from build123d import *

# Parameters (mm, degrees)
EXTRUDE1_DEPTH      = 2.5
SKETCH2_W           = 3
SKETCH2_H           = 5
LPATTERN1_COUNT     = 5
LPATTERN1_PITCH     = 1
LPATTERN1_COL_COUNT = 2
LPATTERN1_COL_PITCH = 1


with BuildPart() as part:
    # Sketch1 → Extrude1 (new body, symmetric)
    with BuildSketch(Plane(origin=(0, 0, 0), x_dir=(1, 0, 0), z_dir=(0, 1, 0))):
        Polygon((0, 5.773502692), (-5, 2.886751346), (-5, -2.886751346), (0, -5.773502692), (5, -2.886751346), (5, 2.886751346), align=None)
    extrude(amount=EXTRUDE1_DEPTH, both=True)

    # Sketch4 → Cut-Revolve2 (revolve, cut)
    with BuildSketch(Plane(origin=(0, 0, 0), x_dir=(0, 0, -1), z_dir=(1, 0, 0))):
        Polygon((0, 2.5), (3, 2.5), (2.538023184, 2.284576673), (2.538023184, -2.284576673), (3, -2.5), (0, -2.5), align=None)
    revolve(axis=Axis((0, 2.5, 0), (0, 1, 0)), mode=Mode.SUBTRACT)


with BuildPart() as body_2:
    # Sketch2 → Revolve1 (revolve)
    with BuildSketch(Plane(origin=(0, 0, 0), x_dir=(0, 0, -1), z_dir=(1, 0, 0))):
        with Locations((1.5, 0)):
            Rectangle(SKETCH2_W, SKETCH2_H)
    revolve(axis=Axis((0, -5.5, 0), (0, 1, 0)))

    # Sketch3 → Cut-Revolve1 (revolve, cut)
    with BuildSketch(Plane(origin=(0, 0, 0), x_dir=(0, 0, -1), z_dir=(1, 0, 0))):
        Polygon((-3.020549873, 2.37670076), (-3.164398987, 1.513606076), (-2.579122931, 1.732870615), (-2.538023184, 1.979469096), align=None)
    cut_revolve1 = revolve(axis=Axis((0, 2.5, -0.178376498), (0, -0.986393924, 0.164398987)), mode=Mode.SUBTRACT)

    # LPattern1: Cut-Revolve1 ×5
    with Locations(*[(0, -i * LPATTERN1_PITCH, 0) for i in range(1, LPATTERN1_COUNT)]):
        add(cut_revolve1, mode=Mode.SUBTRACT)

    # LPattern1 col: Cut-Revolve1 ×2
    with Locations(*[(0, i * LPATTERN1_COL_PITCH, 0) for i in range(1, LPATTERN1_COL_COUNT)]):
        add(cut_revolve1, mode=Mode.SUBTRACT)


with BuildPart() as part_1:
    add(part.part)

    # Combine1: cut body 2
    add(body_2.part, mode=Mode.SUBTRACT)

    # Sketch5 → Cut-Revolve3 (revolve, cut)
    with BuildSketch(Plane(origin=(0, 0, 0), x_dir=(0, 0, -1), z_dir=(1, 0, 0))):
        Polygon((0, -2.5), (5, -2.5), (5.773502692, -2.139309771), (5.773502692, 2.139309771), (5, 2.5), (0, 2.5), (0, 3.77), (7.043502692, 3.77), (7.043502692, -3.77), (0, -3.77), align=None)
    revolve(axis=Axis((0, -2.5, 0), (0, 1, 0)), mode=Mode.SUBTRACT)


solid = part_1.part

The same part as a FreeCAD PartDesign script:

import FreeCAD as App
import Part
import Sketcher
Q = App.Units.Quantity

doc = App.newDocument("Part")
body = doc.addObject("PartDesign::Body", "Body")

# Sketch on XZ plane
sketch1 = body.newObject("Sketcher::SketchObject", "Sketch")
sketch1.AttachmentSupport = (doc.getObject("XZ_Plane"), [""])
sketch1.MapMode = "FlatFace"
sketch1.addGeometry([
    Part.LineSegment(App.Vector(0, -6, 0), App.Vector(-5, -3, 0)),  # 0
    Part.LineSegment(App.Vector(-5, -3, 0), App.Vector(-5, 3, 0)),  # 1
    Part.LineSegment(App.Vector(-5, 3, 0), App.Vector(0, 6, 0)),  # 2
    Part.LineSegment(App.Vector(0, 6, 0), App.Vector(5, 3, 0)),  # 3
    Part.LineSegment(App.Vector(5, 3, 0), App.Vector(5, -3, 0)),  # 4
    Part.LineSegment(App.Vector(5, -3, 0), App.Vector(0, -6, 0)),  # 5
], False)
sketch1.addConstraint([
    Sketcher.Constraint("Coincident", 0, 2, 1, 1),
    Sketcher.Constraint("Coincident", 1, 2, 2, 1),
    Sketcher.Constraint("Coincident", 2, 2, 3, 1),
    Sketcher.Constraint("Coincident", 3, 2, 4, 1),
    Sketcher.Constraint("Coincident", 4, 2, 5, 1),
    Sketcher.Constraint("Coincident", 5, 2, 0, 1),
    Sketcher.Constraint("Vertical", 1),
    Sketcher.Constraint("Vertical", 4),
    Sketcher.Constraint("Symmetric", 0, 2, 3, 2, -1, 1),
    Sketcher.Constraint("Symmetric", 2, 2, 5, 2, -1, 1),
    Sketcher.Constraint("PointOnObject", 2, 2, -2),
    Sketcher.Constraint("Parallel", 2, 5),
    Sketcher.Constraint("Horizontal", 1, 2, 3, 2),
    Sketcher.Constraint("Angle", 0, Q("150 deg")),
    Sketcher.Constraint("DistanceX", 0, 2, -1, 1, 5.0),
    Sketcher.Constraint("DistanceY", 1, 1, 1, 2, 5.773503),
])
pad1 = body.newObject("PartDesign::Pad", "Pad")
pad1.Profile = sketch1
pad1.Length = 5
pad1.Midplane = True

# Sketch on YZ plane
sketch2 = body.newObject("Sketcher::SketchObject", "Sketch001")
sketch2.AttachmentSupport = (doc.getObject("YZ_Plane"), [""])
sketch2.MapMode = "FlatFace"
sketch2.addGeometry([
    Part.LineSegment(App.Vector(2.5, -3, 0), App.Vector(2.5, 0, 0)),  # 0
    Part.LineSegment(App.Vector(2.5, 0, 0), App.Vector(-2.5, 0, 0)),  # 1
    Part.LineSegment(App.Vector(-2.5, 0, 0), App.Vector(-2.5, -3, 0)),  # 2
    Part.LineSegment(App.Vector(-2.5, -3, 0), App.Vector(-2.3, -2.5, 0)),  # 3
    Part.LineSegment(App.Vector(-2.3, -2.5, 0), App.Vector(2.3, -2.5, 0)),  # 4
    Part.LineSegment(App.Vector(2.3, -2.5, 0), App.Vector(2.5, -3, 0)),  # 5
], False)
sketch2.addConstraint([
    Sketcher.Constraint("Coincident", 0, 2, 1, 1),
    Sketcher.Constraint("Coincident", 1, 2, 2, 1),
    Sketcher.Constraint("Coincident", 2, 2, 3, 1),
    Sketcher.Constraint("Coincident", 3, 2, 4, 1),
    Sketcher.Constraint("Coincident", 4, 2, 5, 1),
    Sketcher.Constraint("Coincident", 5, 2, 0, 1),
    Sketcher.Constraint("Vertical", 0),
    Sketcher.Constraint("Horizontal", 1),
    Sketcher.Constraint("Vertical", 2),
    Sketcher.Constraint("Horizontal", 4),
    Sketcher.Constraint("Symmetric", 0, 2, 1, 2, -1, 1),
    Sketcher.Constraint("Horizontal", 2, 2, 5, 2),
    Sketcher.Constraint("Equal", 3, 5),
    Sketcher.Constraint("DistanceX", 1, 2, 1, 1, 5.0),
    Sketcher.Constraint("DistanceY", 0, 1, 0, 2, 3.0),
    Sketcher.Constraint("Angle", 3, Q("65 deg")),
    Sketcher.Constraint("DistanceX", 4, 1, 4, 2, 4.569153),
])
groove = body.newObject("PartDesign::Groove", "Groove")
groove.Profile = sketch2
groove.ReferenceAxis = (sketch2, ["H_Axis"])
groove.Angle = 360
body2 = doc.addObject("PartDesign::Body", "Body001")

# Sketch on YZ plane
sketch3 = body2.newObject("Sketcher::SketchObject", "Sketch002")
sketch3.AttachmentSupport = (doc.getObject("YZ_Plane001"), [""])
sketch3.MapMode = "FlatFace"
sketch3.addGeometry([
    Part.LineSegment(App.Vector(2.5, 0, 0), App.Vector(-2.5, 0, 0)),
    Part.LineSegment(App.Vector(-2.5, 0, 0), App.Vector(-2.5, -3, 0)),
    Part.LineSegment(App.Vector(-2.5, -3, 0), App.Vector(2.5, -3, 0)),
    Part.LineSegment(App.Vector(2.5, -3, 0), App.Vector(2.5, 0, 0)),
], False)
sketch3.addConstraint([
    Sketcher.Constraint("Coincident", 0, 2, 1, 1),
    Sketcher.Constraint("Coincident", 1, 2, 2, 1),
    Sketcher.Constraint("Coincident", 2, 2, 3, 1),
    Sketcher.Constraint("Coincident", 3, 2, 0, 1),
    Sketcher.Constraint("Horizontal", 0),
    Sketcher.Constraint("Vertical", 1),
    Sketcher.Constraint("Horizontal", 2),
    Sketcher.Constraint("Vertical", 3),
    Sketcher.Constraint("Symmetric", 0, 2, 3, 2, -1, 1),
    Sketcher.Constraint("DistanceX", 0, 2, 0, 1, 5.0),
    Sketcher.Constraint("DistanceY", 1, 2, 1, 1, 3.0),
])
revolution = body2.newObject("PartDesign::Revolution", "Revolution")
revolution.Profile = sketch3
revolution.ReferenceAxis = (sketch3, ["H_Axis"])
revolution.Angle = 360

# Sketch on YZ plane
sketch4 = body2.newObject("Sketcher::SketchObject", "Sketch003")
sketch4.AttachmentSupport = (doc.getObject("YZ_Plane001"), [""])
sketch4.MapMode = "FlatFace"
sketch4.addGeometry([
    Part.LineSegment(App.Vector(2.38, 3.02, 0), App.Vector(1.51, 3.16, 0)),
    Part.LineSegment(App.Vector(1.51, 3.16, 0), App.Vector(1.73, 2.58, 0)),
    Part.LineSegment(App.Vector(1.73, 2.58, 0), App.Vector(1.98, 2.54, 0)),
    Part.LineSegment(App.Vector(1.98, 2.54, 0), App.Vector(2.38, 3.02, 0)),
], False)
sketch4.addGeometry(Part.LineSegment(App.Vector(1.86, -0.07, 0), App.Vector(1, 0.07, 0)), True)  # axis
sketch4.addConstraint([
    Sketcher.Constraint("Coincident", 0, 2, 1, 1),
    Sketcher.Constraint("Coincident", 1, 2, 2, 1),
    Sketcher.Constraint("Coincident", 2, 2, 3, 1),
    Sketcher.Constraint("Coincident", 3, 2, 0, 1),
    Sketcher.Constraint("Parallel", 0, 2),
    Sketcher.Constraint("Parallel", 2, 4),
    Sketcher.Constraint("Equal", 1, 3),
    Sketcher.Constraint("Equal", 0, 4),
    Sketcher.Constraint("Distance", 2, 0.25),
    Sketcher.Constraint("Distance", 0, 0.875),
    Sketcher.Constraint("Distance", 1, 0.625),
    Sketcher.Constraint("DistanceY", -1, 1, 0, 2, 3.164399),
    Sketcher.Constraint("DistanceX", -1, 1, 3, 2, 2.376701),
    Sketcher.Constraint("DistanceX", 1, 2, 2, 2, 0.246598),
    Sketcher.Constraint("DistanceY", 4, 2, 1, 2, 2.507198),
    Sketcher.Constraint("DistanceX", -1, 1, 4, 1, 1.861288),
])
groove2 = body2.newObject("PartDesign::Groove", "Groove001")
groove2.Profile = sketch4
groove2.ReferenceAxis = (sketch4, ["Axis0"])
groove2.Angle = 360
doc.recompute()

linearpattern = body2.newObject("PartDesign::LinearPattern", "LinearPattern")
linearpattern.Originals = [groove2]
linearpattern.Direction = (doc.getObject("Y_Axis001"), [""])
linearpattern.Mode = "offset"
linearpattern.Offset = 1
linearpattern.Occurrences = 5
linearpattern.Reversed = True
body2.Tip = linearpattern
doc.recompute()

linearpattern2 = body2.newObject("PartDesign::LinearPattern", "LinearPattern001")
linearpattern2.Originals = [groove2]
linearpattern2.Direction = (doc.getObject("Y_Axis001"), [""])
linearpattern2.Mode = "offset"
linearpattern2.Offset = 1
linearpattern2.Occurrences = 2
body2.Tip = linearpattern2
doc.recompute()

boolean = body.newObject("PartDesign::Boolean", "Boolean")
boolean.Type = "Cut"
boolean.addObjects([body2])

# Sketch on YZ plane
sketch5 = body.newObject("Sketcher::SketchObject", "Sketch004")
sketch5.AttachmentSupport = (doc.getObject("YZ_Plane"), [""])
sketch5.MapMode = "FlatFace"
sketch5.addGeometry([
    Part.LineSegment(App.Vector(-2.5, -5, 0), App.Vector(-2.5, 0, 0)),  # 0
    Part.LineSegment(App.Vector(-2.5, 0, 0), App.Vector(-3.8, 0, 0)),  # 1
    Part.LineSegment(App.Vector(-3.8, 0, 0), App.Vector(-3.8, -7, 0)),  # 2
    Part.LineSegment(App.Vector(-3.8, -7, 0), App.Vector(3.8, -7, 0)),  # 3
    Part.LineSegment(App.Vector(3.8, -7, 0), App.Vector(3.8, 0, 0)),  # 4
    Part.LineSegment(App.Vector(3.8, 0, 0), App.Vector(2.5, 0, 0)),  # 5
    Part.LineSegment(App.Vector(2.5, 0, 0), App.Vector(2.5, -5, 0)),  # 6
    Part.LineSegment(App.Vector(2.5, -5, 0), App.Vector(2.1, -5.8, 0)),  # 7
    Part.LineSegment(App.Vector(2.1, -5.8, 0), App.Vector(-2.1, -5.8, 0)),  # 8
    Part.LineSegment(App.Vector(-2.1, -5.8, 0), App.Vector(-2.5, -5, 0)),  # 9
], False)
sketch5.addConstraint([
    Sketcher.Constraint("Coincident", 0, 2, 1, 1),
    Sketcher.Constraint("Coincident", 1, 2, 2, 1),
    Sketcher.Constraint("Coincident", 2, 2, 3, 1),
    Sketcher.Constraint("Coincident", 3, 2, 4, 1),
    Sketcher.Constraint("Coincident", 4, 2, 5, 1),
    Sketcher.Constraint("Coincident", 5, 2, 6, 1),
    Sketcher.Constraint("Coincident", 6, 2, 7, 1),
    Sketcher.Constraint("Coincident", 7, 2, 8, 1),
    Sketcher.Constraint("Coincident", 8, 2, 9, 1),
    Sketcher.Constraint("Coincident", 9, 2, 0, 1),
    Sketcher.Constraint("Vertical", 0),
    Sketcher.Constraint("Horizontal", 1),
    Sketcher.Constraint("Vertical", 2),
    Sketcher.Constraint("Horizontal", 3),
    Sketcher.Constraint("Vertical", 4),
    Sketcher.Constraint("Horizontal", 5),
    Sketcher.Constraint("Vertical", 6),
    Sketcher.Constraint("Horizontal", 8),
    Sketcher.Constraint("Symmetric", 1, 2, 4, 2, -1, 1),
    Sketcher.Constraint("Symmetric", 0, 2, 5, 2, -2),
    Sketcher.Constraint("Horizontal", 6, 2, 9, 2),
    Sketcher.Constraint("Equal", 7, 9),
    Sketcher.Constraint("DistanceY", 0, 1, 0, 2, 5.0),
    Sketcher.Constraint("Angle", 7, Q("-115 deg")),
    Sketcher.Constraint("DistanceX", 0, 2, 5, 2, 5.0),
    Sketcher.Constraint("DistanceX", 1, 2, 1, 1, 1.27),
    Sketcher.Constraint("DistanceY", 3, 2, 7, 2, 1.27),
    Sketcher.Constraint("DistanceX", 8, 2, 8, 1, 4.27862),
])
groove3 = body.newObject("PartDesign::Groove", "Groove002")
groove3.Profile = sketch5
groove3.ReferenceAxis = (sketch5, ["H_Axis"])
groove3.Angle = 360

doc.recompute()
